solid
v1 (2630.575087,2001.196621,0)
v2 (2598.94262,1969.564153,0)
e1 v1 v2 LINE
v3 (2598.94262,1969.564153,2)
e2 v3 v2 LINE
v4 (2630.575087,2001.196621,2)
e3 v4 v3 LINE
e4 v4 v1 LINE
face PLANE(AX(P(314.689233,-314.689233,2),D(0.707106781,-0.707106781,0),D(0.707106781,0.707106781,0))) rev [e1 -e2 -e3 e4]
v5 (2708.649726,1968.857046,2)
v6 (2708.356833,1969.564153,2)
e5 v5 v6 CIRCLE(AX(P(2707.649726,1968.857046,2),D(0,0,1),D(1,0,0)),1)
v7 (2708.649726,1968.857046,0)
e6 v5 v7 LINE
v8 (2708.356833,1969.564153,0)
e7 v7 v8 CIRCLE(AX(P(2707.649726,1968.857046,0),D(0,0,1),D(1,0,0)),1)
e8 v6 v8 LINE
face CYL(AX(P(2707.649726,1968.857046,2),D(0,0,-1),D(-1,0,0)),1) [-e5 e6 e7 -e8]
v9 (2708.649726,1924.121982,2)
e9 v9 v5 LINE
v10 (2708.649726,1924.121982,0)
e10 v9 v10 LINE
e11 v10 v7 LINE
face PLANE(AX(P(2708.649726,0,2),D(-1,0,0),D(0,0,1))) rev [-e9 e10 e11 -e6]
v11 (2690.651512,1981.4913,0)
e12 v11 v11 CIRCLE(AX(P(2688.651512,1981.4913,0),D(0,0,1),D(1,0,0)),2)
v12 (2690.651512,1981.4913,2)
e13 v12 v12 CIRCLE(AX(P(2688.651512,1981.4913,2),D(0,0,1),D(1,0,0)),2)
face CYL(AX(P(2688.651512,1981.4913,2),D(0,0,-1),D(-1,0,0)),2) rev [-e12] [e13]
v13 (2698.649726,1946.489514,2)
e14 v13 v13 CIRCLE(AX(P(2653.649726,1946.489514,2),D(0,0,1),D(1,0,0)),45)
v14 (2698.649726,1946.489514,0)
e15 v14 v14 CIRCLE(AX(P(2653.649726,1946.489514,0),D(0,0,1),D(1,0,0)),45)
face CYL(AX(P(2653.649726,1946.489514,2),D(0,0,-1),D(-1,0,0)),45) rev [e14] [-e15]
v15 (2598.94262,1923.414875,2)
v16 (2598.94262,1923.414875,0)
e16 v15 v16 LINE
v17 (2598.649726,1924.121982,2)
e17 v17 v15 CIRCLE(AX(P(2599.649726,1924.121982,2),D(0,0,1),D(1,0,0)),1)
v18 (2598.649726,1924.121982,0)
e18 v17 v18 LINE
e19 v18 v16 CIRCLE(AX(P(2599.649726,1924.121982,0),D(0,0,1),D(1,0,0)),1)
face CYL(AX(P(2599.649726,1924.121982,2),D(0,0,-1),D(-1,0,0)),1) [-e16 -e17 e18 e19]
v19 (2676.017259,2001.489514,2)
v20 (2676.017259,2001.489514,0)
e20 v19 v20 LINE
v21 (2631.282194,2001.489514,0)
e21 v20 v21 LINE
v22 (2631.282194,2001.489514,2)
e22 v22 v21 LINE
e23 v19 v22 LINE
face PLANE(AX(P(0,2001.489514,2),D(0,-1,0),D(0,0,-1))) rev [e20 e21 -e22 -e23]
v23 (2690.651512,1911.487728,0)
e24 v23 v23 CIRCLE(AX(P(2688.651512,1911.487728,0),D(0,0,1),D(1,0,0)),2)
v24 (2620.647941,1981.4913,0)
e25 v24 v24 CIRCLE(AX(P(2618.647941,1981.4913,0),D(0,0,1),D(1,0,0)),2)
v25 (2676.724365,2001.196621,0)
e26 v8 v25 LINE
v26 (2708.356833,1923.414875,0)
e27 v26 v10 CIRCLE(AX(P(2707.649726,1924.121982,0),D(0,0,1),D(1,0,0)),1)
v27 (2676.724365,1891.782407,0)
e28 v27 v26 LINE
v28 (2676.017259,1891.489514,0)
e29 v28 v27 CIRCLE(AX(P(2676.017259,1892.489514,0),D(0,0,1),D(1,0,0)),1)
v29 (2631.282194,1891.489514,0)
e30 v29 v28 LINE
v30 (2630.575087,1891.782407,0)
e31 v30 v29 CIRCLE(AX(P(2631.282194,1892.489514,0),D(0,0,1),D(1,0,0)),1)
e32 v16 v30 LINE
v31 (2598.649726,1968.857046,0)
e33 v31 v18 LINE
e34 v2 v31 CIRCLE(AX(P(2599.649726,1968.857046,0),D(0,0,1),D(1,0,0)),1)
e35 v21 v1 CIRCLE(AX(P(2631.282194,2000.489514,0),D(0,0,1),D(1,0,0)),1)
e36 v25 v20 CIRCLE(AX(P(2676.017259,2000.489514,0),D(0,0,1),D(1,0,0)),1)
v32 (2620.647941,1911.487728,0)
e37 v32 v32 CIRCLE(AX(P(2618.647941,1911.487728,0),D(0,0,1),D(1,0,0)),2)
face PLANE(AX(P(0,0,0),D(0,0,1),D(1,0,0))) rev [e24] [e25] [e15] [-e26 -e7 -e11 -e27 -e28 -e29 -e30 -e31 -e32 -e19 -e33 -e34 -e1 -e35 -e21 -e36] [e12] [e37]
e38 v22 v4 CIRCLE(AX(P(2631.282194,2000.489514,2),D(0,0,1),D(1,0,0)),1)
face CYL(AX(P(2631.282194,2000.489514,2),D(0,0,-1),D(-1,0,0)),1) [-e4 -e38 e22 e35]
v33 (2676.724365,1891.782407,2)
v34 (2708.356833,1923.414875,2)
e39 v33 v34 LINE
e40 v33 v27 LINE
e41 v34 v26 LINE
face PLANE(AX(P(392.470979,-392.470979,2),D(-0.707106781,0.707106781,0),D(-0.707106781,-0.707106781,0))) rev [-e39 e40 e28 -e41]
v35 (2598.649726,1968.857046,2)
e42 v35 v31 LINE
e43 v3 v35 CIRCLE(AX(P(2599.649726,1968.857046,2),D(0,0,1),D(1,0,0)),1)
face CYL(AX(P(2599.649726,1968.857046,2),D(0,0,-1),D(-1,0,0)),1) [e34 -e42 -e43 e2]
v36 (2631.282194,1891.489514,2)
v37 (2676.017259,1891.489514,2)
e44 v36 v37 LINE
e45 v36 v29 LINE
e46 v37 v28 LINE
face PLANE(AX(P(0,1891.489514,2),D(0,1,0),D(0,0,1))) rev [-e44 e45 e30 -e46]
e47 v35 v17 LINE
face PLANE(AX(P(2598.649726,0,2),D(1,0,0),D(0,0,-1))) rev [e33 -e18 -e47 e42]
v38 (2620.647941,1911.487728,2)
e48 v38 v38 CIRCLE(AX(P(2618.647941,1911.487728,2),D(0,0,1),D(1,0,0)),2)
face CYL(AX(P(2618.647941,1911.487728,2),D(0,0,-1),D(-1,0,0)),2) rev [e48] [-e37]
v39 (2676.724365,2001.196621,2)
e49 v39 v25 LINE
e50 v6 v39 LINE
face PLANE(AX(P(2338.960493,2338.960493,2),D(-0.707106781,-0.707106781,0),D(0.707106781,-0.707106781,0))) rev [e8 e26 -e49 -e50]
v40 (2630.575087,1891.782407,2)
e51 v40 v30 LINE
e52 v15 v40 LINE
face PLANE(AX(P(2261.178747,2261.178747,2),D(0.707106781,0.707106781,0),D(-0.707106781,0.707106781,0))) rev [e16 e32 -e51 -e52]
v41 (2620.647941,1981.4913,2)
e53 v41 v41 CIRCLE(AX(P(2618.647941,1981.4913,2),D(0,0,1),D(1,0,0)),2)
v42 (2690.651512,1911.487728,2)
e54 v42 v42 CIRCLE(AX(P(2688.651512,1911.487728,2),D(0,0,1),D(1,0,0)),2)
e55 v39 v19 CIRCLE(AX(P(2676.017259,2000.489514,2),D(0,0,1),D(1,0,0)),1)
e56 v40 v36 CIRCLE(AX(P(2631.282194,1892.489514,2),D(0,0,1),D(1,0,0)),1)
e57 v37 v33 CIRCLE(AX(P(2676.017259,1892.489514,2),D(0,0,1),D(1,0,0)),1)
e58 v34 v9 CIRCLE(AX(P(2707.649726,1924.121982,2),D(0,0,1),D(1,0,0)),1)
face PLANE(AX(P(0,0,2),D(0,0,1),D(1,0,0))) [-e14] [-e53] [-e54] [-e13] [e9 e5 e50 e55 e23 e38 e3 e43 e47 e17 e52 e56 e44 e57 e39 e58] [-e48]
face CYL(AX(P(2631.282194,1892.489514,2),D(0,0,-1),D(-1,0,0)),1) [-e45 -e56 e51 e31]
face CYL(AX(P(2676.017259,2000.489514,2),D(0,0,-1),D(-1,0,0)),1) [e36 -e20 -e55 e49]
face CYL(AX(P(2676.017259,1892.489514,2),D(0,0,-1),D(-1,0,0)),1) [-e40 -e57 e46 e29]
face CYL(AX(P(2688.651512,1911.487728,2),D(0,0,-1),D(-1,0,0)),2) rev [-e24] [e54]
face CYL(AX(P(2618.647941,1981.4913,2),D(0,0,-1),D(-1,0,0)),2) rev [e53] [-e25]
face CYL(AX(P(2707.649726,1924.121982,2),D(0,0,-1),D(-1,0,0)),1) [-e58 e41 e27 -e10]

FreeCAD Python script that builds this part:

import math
import FreeCAD as App
import Part
import Sketcher
from FreeCAD import Vector
Q = App.Units.Quantity

doc = App.newDocument("Part")
params = doc.addObject("Spreadsheet::Sheet", "Params")
for row, (alias, value) in enumerate([
    ("sketch1_diameter", "4 mm"),
    ("sketch1_diameter2", "90 mm"),
    ("sketch1_radius", "1 mm"),
    ("pad1_length", "2 mm"),
], start=1):
    params.set(f"A{row}", alias)
    params.set(f"B{row}", "=" + value)
    params.setAlias(f"B{row}", alias)

body = doc.addObject("PartDesign::Body", "Body")

# Sketch on XY plane
sketch1 = body.newObject("Sketcher::SketchObject", "Sketch")
sketch1.AttachmentSupport = (doc.getObject("XY_Plane"), [""])
sketch1.MapMode = "FlatFace"
sketch1.addGeometry([
    Part.LineSegment(Vector(2676, 2001.5, 0), Vector(2631.3, 2001.5, 0)),  # 0
    Part.ArcOfCircle(Part.Circle(Vector(2631.3, 2000.5, 0), Vector(0, 0, 1), 1), math.radians(90), math.radians(135)),  # 1
    Part.LineSegment(Vector(2630.6, 2001.2, 0), Vector(2598.9, 1969.6, 0)),  # 2
    Part.ArcOfCircle(Part.Circle(Vector(2599.6, 1968.9, 0), Vector(0, 0, 1), 1), math.radians(135), math.radians(180)),  # 3
    Part.LineSegment(Vector(2598.6, 1968.9, 0), Vector(2598.6, 1924.1, 0)),  # 4
    Part.ArcOfCircle(Part.Circle(Vector(2599.6, 1924.1, 0), Vector(0, 0, 1), 1), math.radians(180), math.radians(225)),  # 5
    Part.LineSegment(Vector(2598.9, 1923.4, 0), Vector(2630.6, 1891.8, 0)),  # 6
    Part.ArcOfCircle(Part.Circle(Vector(2631.3, 1892.5, 0), Vector(0, 0, 1), 1), math.radians(-135), math.radians(-90)),  # 7
    Part.LineSegment(Vector(2631.3, 1891.5, 0), Vector(2676, 1891.5, 0)),  # 8
    Part.ArcOfCircle(Part.Circle(Vector(2676, 1892.5, 0), Vector(0, 0, 1), 1), math.radians(-90), math.radians(-45)),  # 9
    Part.LineSegment(Vector(2676.7, 1891.8, 0), Vector(2708.4, 1923.4, 0)),  # 10
    Part.ArcOfCircle(Part.Circle(Vector(2707.6, 1924.1, 0), Vector(0, 0, 1), 1), math.radians(-45), math.radians(0)),  # 11
    Part.LineSegment(Vector(2708.6, 1924.1, 0), Vector(2708.6, 1968.9, 0)),  # 12
    Part.ArcOfCircle(Part.Circle(Vector(2707.6, 1968.9, 0), Vector(0, 0, 1), 1), math.radians(0), math.radians(45)),  # 13
    Part.LineSegment(Vector(2708.4, 1969.6, 0), Vector(2676.7, 2001.2, 0)),  # 14
    Part.ArcOfCircle(Part.Circle(Vector(2676, 2000.5, 0), Vector(0, 0, 1), 1), math.radians(45), math.radians(90)),  # 15
    Part.Circle(Vector(2618.6, 1911.5, 0), Vector(0, 0, 1), 2),  # 16
    Part.Circle(Vector(2688.7, 1911.5, 0), Vector(0, 0, 1), 2),  # 17
    Part.Circle(Vector(2618.6, 1981.5, 0), Vector(0, 0, 1), 2),  # 18
    Part.Circle(Vector(2653.6, 1946.5, 0), Vector(0, 0, 1), 45),  # 19
    Part.Circle(Vector(2688.7, 1981.5, 0), Vector(0, 0, 1), 2),  # 20
], False)
sketch1.addConstraint([
    Sketcher.Constraint("Tangent", 0, 2, 1, 1),
    Sketcher.Constraint("Tangent", 1, 2, 2, 1),
    Sketcher.Constraint("Tangent", 2, 2, 3, 1),
    Sketcher.Constraint("Tangent", 3, 2, 4, 1),
    Sketcher.Constraint("Tangent", 4, 2, 5, 1),
    Sketcher.Constraint("Tangent", 5, 2, 6, 1),
    Sketcher.Constraint("Tangent", 6, 2, 7, 1),
    Sketcher.Constraint("Tangent", 7, 2, 8, 1),
    Sketcher.Constraint("Tangent", 8, 2, 9, 1),
    Sketcher.Constraint("Tangent", 9, 2, 10, 1),
    Sketcher.Constraint("Tangent", 10, 2, 11, 1),
    Sketcher.Constraint("Tangent", 11, 2, 12, 1),
    Sketcher.Constraint("Tangent", 12, 2, 13, 1),
    Sketcher.Constraint("Tangent", 13, 2, 14, 1),
    Sketcher.Constraint("Tangent", 14, 2, 15, 1),
    Sketcher.Constraint("Tangent", 15, 2, 0, 1),
    Sketcher.Constraint("Horizontal", 0),
    Sketcher.Constraint("Vertical", 4),
    Sketcher.Constraint("Horizontal", 8),
    Sketcher.Constraint("Vertical", 12),
    Sketcher.Constraint("Equal", 1, 3),
    Sketcher.Constraint("Equal", 3, 5),
    Sketcher.Constraint("Equal", 5, 7),
    Sketcher.Constraint("Equal", 7, 9),
    Sketcher.Constraint("Equal", 9, 11),
    Sketcher.Constraint("Equal", 11, 13),
    Sketcher.Constraint("Equal", 13, 15),
    Sketcher.Constraint("Equal", 16, 17),
    Sketcher.Constraint("Equal", 17, 18),
    Sketcher.Constraint("Equal", 18, 20),
    Sketcher.Constraint("Perpendicular", 2, 6),
    Sketcher.Constraint("Perpendicular", 6, 10),
    Sketcher.Constraint("Perpendicular", 10, 14),
    Sketcher.Constraint("Horizontal", 5, 3, 11, 3),
    Sketcher.Constraint("Horizontal", 3, 3, 13, 3),
    Sketcher.Constraint("Horizontal", 16, 3, 17, 3),
    Sketcher.Constraint("Horizontal", 18, 3, 20, 3),
    Sketcher.Constraint("Horizontal", 6, 2, 9, 2),
    Sketcher.Constraint("Vertical", 1, 3, 7, 3),
    Sketcher.Constraint("Vertical", 16, 3, 18, 3),
    Sketcher.Constraint("Vertical", 17, 3, 20, 3),
    Sketcher.Constraint("Equal", 8, 4),
    Sketcher.Constraint("Diameter", 16, Q("4 mm")),
    Sketcher.Constraint("Diameter", 19, Q("90 mm")),
    Sketcher.Constraint("Radius", 1, Q("1 mm")),
    Sketcher.Constraint("DistanceY", 7, 3, 1, 3, Q("108 mm")),
    Sketcher.Constraint("DistanceY", 9, 3, 19, 3, Q("54 mm")),
    Sketcher.Constraint("DistanceX", 19, 3, 11, 3, Q("54 mm")),
    Sketcher.Constraint("DistanceY", -1, 1, 18, 3, Q("1981.4913 mm")),
    Sketcher.Constraint("DistanceX", 0, 2, 0, 1, Q("44.735065 mm")),
    Sketcher.Constraint("DistanceY", -1, 1, 5, 3, Q("1924.121982 mm")),
    Sketcher.Constraint("DistanceX", -1, 1, 9, 3, Q("2676.017259 mm")),
    Sketcher.Constraint("DistanceX", -1, 1, 16, 3, Q("2618.647941 mm")),
    Sketcher.Constraint("DistanceY", -1, 1, 16, 3, Q("1911.487728 mm")),
    Sketcher.Constraint("DistanceX", -1, 1, 17, 3, Q("2688.651512 mm")),
])
sketch1.setExpression("Constraints[42]", "Params.sketch1_diameter")
sketch1.setExpression("Constraints[43]", "Params.sketch1_diameter2")
sketch1.setExpression("Constraints[44]", "Params.sketch1_radius")
pad1 = body.newObject("PartDesign::Pad", "Pad")
pad1.Profile = sketch1
pad1.setExpression("Length", "Params.pad1_length")

doc.recompute()
